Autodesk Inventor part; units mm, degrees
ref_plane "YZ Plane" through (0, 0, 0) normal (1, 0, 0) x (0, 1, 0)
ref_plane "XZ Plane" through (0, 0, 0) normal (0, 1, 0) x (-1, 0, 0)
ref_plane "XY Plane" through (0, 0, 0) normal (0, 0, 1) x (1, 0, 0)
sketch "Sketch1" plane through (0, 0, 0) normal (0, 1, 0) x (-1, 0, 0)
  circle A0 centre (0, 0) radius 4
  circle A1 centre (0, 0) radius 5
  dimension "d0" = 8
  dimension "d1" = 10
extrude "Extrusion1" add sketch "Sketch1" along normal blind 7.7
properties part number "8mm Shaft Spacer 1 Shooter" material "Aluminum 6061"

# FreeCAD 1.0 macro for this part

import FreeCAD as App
import Part
import Sketcher
from FreeCAD import Vector
Q = App.Units.Quantity

doc = App.newDocument("Part")
body = doc.addObject("PartDesign::Body", "Body")

# Sketch on XZ plane
sketch1 = body.newObject("Sketcher::SketchObject", "Sketch")
sketch1.AttachmentSupport = (doc.getObject("XZ_Plane"), [""])
sketch1.MapMode = "FlatFace"
sketch1.addGeometry(Part.Circle(Vector(0, 0, 0), Vector(0, 0, 1), 5), False)
sketch1.addGeometry(Part.Circle(Vector(0, 0, 0), Vector(0, 0, 1), 4), False)
sketch1.addConstraint(Sketcher.Constraint("Coincident", 0, 3, -1, 1))
sketch1.addConstraint(Sketcher.Constraint("Coincident", 1, 3, -1, 1))
sketch1.addConstraint(Sketcher.Constraint("Diameter", 0, Q("10 mm")))
sketch1.addConstraint(Sketcher.Constraint("Diameter", 1, Q("8 mm")))
pad1 = body.newObject("PartDesign::Pad", "Pad")
pad1.Profile = sketch1
pad1.Length = 7.7
pad1.Reversed = True

doc.recompute()
